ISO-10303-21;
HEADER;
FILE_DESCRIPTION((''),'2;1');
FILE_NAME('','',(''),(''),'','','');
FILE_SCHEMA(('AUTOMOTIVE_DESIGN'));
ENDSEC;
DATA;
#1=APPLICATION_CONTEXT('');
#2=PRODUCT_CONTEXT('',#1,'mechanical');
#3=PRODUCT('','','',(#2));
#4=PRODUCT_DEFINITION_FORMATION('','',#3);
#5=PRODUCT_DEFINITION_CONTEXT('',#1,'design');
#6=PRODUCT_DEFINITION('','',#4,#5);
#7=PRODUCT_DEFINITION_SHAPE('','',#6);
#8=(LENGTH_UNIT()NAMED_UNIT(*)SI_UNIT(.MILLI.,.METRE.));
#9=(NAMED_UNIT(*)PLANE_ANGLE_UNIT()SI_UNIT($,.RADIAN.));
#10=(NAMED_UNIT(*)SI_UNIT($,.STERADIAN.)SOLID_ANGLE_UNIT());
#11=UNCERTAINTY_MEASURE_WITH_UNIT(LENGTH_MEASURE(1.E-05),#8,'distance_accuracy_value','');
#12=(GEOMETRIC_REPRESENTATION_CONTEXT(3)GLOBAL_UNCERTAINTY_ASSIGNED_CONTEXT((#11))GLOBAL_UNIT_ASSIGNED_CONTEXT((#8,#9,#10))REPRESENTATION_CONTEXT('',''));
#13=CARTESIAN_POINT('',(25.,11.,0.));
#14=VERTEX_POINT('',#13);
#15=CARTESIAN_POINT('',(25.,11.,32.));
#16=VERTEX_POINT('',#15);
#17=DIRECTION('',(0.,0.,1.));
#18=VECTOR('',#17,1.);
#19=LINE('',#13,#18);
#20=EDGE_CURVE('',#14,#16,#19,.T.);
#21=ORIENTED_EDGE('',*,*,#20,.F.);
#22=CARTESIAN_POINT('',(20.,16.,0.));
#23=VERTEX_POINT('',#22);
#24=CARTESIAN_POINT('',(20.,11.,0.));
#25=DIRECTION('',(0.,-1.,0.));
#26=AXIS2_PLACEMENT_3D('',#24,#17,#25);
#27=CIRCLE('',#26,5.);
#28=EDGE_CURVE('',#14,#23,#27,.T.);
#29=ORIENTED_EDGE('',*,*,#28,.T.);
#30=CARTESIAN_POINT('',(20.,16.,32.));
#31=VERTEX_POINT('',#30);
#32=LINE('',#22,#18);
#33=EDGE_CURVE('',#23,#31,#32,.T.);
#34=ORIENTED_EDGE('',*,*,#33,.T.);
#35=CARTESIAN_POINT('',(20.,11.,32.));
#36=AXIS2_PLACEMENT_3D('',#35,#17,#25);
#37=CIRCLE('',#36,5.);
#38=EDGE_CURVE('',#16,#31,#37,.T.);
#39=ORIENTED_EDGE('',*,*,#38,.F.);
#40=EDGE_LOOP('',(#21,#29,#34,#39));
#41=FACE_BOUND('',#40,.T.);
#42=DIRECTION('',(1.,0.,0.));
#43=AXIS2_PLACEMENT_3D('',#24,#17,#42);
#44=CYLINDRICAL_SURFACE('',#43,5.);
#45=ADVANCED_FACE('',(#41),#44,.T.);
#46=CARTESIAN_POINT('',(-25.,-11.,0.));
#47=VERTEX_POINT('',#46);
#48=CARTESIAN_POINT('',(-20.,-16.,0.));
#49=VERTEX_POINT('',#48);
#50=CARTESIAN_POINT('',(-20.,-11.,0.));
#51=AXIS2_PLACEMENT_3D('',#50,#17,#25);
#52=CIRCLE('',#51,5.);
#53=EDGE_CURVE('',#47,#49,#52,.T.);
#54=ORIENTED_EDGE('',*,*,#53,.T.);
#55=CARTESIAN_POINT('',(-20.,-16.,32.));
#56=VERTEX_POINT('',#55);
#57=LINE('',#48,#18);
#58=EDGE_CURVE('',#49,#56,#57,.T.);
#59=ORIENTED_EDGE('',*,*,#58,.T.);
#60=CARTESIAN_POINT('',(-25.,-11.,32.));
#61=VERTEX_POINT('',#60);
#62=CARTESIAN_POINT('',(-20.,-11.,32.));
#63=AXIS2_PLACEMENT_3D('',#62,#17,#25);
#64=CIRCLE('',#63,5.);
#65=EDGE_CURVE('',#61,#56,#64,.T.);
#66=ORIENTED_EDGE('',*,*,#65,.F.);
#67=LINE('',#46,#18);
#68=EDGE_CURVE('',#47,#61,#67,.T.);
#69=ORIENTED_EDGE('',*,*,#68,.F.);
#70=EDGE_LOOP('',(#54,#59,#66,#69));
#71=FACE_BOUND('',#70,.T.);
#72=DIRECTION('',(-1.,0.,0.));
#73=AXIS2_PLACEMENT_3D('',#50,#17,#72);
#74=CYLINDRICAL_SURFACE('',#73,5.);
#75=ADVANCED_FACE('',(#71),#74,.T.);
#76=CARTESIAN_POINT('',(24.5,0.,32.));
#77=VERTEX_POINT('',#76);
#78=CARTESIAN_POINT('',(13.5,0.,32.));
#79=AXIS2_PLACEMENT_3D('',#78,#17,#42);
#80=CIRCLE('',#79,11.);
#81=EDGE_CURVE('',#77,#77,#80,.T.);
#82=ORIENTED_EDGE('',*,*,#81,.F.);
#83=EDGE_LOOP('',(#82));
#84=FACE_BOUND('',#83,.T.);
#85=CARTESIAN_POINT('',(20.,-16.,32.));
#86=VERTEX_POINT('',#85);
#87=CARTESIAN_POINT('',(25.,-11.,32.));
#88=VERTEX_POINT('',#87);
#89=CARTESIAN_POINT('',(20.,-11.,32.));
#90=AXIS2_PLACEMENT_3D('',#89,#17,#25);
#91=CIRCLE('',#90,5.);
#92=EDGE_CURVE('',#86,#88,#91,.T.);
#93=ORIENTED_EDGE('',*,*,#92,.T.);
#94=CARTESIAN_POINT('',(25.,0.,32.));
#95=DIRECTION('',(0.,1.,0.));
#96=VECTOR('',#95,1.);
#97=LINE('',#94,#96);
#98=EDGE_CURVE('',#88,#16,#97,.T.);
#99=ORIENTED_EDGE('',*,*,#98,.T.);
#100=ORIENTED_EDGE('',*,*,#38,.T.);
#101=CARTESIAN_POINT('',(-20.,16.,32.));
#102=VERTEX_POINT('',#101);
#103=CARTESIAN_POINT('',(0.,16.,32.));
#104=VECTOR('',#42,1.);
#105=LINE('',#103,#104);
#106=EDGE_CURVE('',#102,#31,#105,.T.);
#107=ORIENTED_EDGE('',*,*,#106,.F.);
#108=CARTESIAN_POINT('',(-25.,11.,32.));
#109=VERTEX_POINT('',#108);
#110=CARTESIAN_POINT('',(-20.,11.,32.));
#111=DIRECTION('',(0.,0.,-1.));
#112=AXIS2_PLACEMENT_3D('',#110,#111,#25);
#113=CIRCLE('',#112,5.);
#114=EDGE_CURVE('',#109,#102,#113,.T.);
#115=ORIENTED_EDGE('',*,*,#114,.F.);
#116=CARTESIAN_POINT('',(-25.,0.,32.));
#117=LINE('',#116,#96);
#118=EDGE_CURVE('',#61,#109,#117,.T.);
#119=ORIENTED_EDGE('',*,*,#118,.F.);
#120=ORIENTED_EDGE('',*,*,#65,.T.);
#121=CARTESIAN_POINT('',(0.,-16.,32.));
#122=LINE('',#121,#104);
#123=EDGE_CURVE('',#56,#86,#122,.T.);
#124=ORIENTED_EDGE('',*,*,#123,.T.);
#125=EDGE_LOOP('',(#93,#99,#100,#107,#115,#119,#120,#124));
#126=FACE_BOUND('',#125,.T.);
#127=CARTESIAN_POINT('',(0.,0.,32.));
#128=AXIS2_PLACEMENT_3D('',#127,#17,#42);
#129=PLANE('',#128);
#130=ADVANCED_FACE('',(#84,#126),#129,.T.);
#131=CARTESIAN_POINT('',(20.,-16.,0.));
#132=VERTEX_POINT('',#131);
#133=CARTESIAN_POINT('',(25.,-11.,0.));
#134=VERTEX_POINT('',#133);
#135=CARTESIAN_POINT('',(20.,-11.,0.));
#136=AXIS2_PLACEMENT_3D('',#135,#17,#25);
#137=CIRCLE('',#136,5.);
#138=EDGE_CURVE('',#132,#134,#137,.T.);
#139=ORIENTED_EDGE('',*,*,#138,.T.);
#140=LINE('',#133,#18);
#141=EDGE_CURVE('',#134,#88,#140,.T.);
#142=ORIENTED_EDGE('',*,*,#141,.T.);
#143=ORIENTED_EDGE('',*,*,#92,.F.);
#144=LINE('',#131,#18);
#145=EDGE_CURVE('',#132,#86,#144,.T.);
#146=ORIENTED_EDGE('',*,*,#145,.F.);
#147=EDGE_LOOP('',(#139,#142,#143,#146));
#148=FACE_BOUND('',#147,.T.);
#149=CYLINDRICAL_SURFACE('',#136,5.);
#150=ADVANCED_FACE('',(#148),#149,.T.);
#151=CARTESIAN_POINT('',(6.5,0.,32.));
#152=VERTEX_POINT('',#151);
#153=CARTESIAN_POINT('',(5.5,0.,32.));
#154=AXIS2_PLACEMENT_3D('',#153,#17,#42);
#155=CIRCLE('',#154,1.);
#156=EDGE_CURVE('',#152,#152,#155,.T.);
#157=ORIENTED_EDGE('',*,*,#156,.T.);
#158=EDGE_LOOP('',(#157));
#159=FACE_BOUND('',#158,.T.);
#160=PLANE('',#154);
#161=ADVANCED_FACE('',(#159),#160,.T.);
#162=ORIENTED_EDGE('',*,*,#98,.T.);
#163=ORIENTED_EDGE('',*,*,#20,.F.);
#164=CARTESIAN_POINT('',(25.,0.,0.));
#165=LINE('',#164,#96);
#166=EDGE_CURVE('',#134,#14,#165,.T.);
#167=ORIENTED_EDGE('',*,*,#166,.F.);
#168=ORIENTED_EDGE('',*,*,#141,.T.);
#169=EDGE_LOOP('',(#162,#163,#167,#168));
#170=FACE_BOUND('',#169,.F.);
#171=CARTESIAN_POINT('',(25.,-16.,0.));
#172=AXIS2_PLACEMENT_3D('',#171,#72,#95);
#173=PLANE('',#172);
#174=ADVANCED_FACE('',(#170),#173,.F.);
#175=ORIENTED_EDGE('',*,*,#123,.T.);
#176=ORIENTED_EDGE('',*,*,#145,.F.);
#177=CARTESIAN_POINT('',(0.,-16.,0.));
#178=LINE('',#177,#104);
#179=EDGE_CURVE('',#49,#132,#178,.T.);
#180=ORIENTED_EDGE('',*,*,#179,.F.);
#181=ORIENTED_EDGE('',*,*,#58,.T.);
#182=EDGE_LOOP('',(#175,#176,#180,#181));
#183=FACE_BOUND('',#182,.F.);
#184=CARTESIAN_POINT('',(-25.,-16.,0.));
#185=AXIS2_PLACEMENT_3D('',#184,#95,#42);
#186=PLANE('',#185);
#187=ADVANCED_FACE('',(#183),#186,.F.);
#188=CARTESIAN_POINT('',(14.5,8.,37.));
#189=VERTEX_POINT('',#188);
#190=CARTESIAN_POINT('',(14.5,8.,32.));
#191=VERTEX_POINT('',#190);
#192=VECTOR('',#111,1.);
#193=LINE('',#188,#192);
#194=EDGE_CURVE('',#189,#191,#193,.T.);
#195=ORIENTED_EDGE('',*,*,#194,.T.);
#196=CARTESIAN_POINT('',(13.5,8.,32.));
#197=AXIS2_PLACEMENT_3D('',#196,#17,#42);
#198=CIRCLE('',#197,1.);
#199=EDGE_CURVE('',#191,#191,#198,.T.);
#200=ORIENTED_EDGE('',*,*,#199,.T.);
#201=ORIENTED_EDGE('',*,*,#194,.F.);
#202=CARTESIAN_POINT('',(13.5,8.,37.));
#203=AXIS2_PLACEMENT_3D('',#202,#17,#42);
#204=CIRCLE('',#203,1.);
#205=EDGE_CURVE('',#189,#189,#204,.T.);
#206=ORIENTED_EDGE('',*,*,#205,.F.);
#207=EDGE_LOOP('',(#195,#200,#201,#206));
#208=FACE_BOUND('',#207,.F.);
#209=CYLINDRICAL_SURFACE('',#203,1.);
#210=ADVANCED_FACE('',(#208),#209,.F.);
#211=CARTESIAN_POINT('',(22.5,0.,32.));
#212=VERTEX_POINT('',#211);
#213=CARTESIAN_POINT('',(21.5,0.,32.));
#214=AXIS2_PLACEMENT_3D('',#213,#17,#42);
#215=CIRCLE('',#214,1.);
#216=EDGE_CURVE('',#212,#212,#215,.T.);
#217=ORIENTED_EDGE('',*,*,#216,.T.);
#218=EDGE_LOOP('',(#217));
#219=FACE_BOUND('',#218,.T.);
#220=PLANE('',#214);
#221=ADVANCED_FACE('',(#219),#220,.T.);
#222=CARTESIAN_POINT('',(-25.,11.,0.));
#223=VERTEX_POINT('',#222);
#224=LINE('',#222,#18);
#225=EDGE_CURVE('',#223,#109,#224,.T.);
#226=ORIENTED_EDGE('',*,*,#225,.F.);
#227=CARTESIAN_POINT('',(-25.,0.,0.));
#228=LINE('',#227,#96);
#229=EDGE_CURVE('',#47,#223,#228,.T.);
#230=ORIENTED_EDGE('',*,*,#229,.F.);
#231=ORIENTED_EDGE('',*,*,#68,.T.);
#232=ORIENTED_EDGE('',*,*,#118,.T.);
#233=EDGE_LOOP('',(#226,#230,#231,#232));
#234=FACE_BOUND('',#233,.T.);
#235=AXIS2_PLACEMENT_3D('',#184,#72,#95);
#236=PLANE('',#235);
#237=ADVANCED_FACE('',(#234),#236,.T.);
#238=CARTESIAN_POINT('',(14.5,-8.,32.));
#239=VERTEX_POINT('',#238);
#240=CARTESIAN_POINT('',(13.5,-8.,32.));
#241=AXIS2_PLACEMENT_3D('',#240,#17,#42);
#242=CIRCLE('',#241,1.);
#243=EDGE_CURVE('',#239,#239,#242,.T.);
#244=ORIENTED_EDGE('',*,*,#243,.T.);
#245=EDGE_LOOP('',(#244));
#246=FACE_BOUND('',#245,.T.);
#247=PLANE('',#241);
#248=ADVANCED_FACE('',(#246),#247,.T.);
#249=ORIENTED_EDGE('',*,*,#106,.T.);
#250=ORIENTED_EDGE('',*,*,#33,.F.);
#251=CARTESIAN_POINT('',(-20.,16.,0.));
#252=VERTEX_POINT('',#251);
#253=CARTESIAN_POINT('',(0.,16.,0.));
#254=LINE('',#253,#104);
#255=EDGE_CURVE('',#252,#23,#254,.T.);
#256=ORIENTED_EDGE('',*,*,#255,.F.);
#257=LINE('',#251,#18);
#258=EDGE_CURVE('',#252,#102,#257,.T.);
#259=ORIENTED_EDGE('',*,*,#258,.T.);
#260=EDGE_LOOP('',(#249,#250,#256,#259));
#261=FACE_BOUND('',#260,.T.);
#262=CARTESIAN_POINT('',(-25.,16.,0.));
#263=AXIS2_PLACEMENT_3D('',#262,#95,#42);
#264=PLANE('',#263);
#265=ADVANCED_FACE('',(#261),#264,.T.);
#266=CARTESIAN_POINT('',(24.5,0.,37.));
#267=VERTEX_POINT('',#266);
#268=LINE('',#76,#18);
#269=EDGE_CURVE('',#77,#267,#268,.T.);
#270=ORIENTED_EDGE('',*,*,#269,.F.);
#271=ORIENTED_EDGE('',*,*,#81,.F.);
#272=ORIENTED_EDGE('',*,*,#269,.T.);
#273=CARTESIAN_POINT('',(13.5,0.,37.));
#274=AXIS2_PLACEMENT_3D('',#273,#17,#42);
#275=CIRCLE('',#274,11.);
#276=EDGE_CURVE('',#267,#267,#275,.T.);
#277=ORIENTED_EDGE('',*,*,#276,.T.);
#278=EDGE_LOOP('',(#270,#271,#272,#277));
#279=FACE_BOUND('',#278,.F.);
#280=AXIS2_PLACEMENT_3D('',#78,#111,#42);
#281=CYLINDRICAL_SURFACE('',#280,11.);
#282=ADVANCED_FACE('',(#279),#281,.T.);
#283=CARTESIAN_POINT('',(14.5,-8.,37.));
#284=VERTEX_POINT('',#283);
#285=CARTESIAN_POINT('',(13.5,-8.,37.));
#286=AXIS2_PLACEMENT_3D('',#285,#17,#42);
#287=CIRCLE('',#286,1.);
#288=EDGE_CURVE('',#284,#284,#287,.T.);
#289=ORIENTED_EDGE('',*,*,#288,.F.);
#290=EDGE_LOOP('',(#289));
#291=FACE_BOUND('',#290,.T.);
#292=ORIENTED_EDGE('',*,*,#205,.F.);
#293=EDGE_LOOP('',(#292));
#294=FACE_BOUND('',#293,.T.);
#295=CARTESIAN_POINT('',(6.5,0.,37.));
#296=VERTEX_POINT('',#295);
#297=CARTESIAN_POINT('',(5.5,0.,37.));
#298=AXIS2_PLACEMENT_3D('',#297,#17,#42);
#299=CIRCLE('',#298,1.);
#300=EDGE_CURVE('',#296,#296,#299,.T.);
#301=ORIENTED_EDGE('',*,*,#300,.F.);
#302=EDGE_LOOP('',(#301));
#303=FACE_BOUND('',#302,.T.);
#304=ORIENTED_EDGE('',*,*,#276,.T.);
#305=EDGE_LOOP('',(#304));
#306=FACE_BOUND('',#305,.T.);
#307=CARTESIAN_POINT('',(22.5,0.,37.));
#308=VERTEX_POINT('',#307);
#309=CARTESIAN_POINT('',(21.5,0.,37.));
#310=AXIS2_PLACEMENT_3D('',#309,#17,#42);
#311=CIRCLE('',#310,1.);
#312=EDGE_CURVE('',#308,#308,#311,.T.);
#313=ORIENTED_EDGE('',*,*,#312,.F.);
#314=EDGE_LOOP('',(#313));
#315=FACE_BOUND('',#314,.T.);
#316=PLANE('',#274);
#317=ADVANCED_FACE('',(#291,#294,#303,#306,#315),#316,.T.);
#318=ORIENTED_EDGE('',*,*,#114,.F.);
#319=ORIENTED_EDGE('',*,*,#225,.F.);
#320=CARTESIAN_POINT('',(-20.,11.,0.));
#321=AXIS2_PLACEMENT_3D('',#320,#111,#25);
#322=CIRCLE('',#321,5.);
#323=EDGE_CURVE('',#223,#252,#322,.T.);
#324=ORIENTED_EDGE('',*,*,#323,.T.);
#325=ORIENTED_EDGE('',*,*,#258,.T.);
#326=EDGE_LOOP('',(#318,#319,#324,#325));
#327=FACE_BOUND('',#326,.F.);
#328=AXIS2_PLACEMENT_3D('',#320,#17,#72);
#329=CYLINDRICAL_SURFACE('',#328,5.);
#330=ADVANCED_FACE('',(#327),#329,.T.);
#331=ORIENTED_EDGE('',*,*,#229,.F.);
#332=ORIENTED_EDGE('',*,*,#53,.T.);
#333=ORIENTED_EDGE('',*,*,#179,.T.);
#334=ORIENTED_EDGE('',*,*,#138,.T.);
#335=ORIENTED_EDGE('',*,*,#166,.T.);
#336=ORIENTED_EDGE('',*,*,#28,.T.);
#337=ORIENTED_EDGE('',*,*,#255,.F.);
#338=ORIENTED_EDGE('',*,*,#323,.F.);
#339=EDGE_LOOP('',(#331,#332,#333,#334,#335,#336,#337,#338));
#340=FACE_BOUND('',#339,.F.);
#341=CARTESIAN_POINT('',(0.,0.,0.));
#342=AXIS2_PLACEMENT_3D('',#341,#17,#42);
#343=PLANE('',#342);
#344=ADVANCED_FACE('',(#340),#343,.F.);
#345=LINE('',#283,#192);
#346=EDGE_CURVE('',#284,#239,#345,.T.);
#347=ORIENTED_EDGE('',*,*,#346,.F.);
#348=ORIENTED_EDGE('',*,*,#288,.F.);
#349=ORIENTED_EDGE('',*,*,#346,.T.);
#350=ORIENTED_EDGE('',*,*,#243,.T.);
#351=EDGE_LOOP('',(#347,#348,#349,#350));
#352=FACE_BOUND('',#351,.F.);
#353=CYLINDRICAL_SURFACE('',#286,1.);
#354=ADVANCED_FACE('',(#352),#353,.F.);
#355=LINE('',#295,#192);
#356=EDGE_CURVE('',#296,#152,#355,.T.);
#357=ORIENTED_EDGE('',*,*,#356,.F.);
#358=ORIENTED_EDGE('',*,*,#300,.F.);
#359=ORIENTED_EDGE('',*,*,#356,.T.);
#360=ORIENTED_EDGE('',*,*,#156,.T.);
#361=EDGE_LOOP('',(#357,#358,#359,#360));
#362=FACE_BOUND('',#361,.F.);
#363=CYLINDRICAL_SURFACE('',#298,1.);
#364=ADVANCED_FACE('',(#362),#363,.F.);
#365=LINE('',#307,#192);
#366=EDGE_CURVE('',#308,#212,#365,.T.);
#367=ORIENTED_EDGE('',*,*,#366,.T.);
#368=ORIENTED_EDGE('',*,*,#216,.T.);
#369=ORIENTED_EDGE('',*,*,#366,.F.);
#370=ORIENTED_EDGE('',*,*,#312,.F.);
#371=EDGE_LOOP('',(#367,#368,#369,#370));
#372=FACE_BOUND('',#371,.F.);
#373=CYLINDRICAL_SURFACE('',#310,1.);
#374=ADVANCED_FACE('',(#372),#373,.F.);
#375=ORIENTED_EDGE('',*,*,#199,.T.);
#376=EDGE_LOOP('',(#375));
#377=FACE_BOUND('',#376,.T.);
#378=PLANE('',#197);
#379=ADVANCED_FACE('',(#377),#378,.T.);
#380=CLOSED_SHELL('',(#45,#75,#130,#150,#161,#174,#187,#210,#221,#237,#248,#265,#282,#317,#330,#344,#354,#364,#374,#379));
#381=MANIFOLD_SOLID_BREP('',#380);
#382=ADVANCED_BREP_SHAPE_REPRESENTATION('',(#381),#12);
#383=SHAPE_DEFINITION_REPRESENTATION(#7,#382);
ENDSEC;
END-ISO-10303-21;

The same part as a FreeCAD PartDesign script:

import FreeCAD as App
import Part
import Sketcher
Q = App.Units.Quantity


def edges_at(feature, points):
    """Names of the edges that pass closest to the given points."""
    edges = feature.Shape.Edges
    near = lambda p: min(range(len(edges)), key=lambda i: edges[i].distToShape(Part.Vertex(*p))[0])
    return sorted({f"Edge{near(p) + 1}" for p in points})


def add_polygon(sketch, points):
    """Adds a closed chain of lines whose ends are joined by coincident constraints."""
    first, n = sketch.GeometryCount, len(points)
    for a, b in zip(points, points[1:] + points[:1]):
        sketch.addGeometry(Part.LineSegment(App.Vector(*a, 0), App.Vector(*b, 0)), False)
    for i in range(n):
        sketch.addConstraint(Sketcher.Constraint("Coincident", first + i, 2, first + (i + 1) % n, 1))

doc = App.newDocument("Part")
params = doc.addObject("Spreadsheet::Sheet", "Params")
for row, (alias, value) in enumerate([
    ("sketch1_width", "50 mm"),
    ("sketch1_height", "32 mm"),
    ("pad1_length", "32 mm"),
    ("fillet_radius", "5 mm"),
    ("sketch2_diameter", "22 mm"),
    ("pad2_length", "5 mm"),
    ("sketch3_diameter", "2 mm"),
    ("pocket1_length", "5 mm"),
], start=1):
    params.set(f"A{row}", alias)
    params.set(f"B{row}", "=" + value)
    params.setAlias(f"B{row}", alias)

body = doc.addObject("PartDesign::Body", "Body")

# Sketch on XY plane
sketch1 = doc.addObject("Sketcher::SketchObject", "Sketch")
body.addObject(sketch1)
sketch1.AttachmentSupport = (doc.XY_Plane, [""])
sketch1.MapMode = "FlatFace"
add_polygon(sketch1, [(-25, 16), (-25, -16), (25, -16), (25, 16)])  # lines 0-3
sketch1.addConstraint([
    Sketcher.Constraint("Vertical", 0),
    Sketcher.Constraint("Horizontal", 1),
    Sketcher.Constraint("Vertical", 2),
    Sketcher.Constraint("Horizontal", 3),
    Sketcher.Constraint("Symmetric", 0, 2, 2, 2, -1, 1),
    Sketcher.Constraint("DistanceX", 1, 1, 1, 2, Q("50 mm")),
    Sketcher.Constraint("DistanceY", 0, 2, 0, 1, Q("32 mm")),
])
sketch1.setExpression("Constraints[9]", "Params.sketch1_width")
sketch1.setExpression("Constraints[10]", "Params.sketch1_height")
pad1 = doc.addObject("PartDesign::Pad", "Pad")
body.addObject(pad1)
pad1.Profile = sketch1
pad1.setExpression("Length", "Params.pad1_length")
doc.recompute()

fillet = doc.addObject("PartDesign::Fillet", "Fillet")
body.addObject(fillet)
fillet.Base = (pad1, edges_at(pad1, [
    (-25, -16, 16),
    (-25, 16, 16),
    (25, -16, 16),
    (25, 16, 16),
]))
fillet.setExpression("Radius", "Params.fillet_radius")

# Sketch on XY plane
sketch2 = doc.addObject("Sketcher::SketchObject", "Sketch001")
body.addObject(sketch2)
sketch2.AttachmentSupport = (doc.XY_Plane, [""])
sketch2.MapMode = "FlatFace"
sketch2.AttachmentOffset = App.Placement(App.Vector(0, 0, 32), App.Rotation())
sketch2.addGeometry(Part.Circle(App.Vector(14, 0, 0), App.Vector(0, 0, 1), 11), False)
sketch2.addConstraint([
    Sketcher.Constraint("PointOnObject", 0, 3, -1),
    Sketcher.Constraint("Diameter", 0, Q("22 mm")),
    Sketcher.Constraint("DistanceX", -1, 1, 0, 3, Q("13.5 mm")),
])
sketch2.setExpression("Constraints[1]", "Params.sketch2_diameter")
pad2 = doc.addObject("PartDesign::Pad", "Pad001")
body.addObject(pad2)
pad2.Profile = sketch2
pad2.setExpression("Length", "Params.pad2_length")

# Sketch on XY plane
sketch3 = doc.addObject("Sketcher::SketchObject", "Sketch002")
body.addObject(sketch3)
sketch3.AttachmentSupport = (doc.XY_Plane, [""])
sketch3.MapMode = "FlatFace"
sketch3.AttachmentOffset = App.Placement(App.Vector(0, 0, 37), App.Rotation())
sketch3.addGeometry([
    Part.Circle(App.Vector(21.5, 0, 0), App.Vector(0, 0, 1), 1),
    Part.Circle(App.Vector(13.5, 8, 0), App.Vector(0, 0, 1), 1),
    Part.Circle(App.Vector(5.5, 0, 0), App.Vector(0, 0, 1), 1),
    Part.Circle(App.Vector(13.5, -8, 0), App.Vector(0, 0, 1), 1),
], False)
sketch3.addConstraint([
    Sketcher.Constraint("Equal", 0, 1),
    Sketcher.Constraint("Equal", 1, 2),
    Sketcher.Constraint("Equal", 2, 3),
    Sketcher.Constraint("Symmetric", 1, 3, 3, 3, -1),
    Sketcher.Constraint("PointOnObject", 0, 3, -1),
    Sketcher.Constraint("PointOnObject", 2, 3, -1),
    Sketcher.Constraint("Diameter", 0, Q("2 mm")),
    Sketcher.Constraint("DistanceY", -1, 1, 1, 3, Q("8 mm")),
    Sketcher.Constraint("DistanceX", 1, 3, 0, 3, Q("8 mm")),
    Sketcher.Constraint("DistanceX", 2, 3, 1, 3, Q("8 mm")),
    Sketcher.Constraint("DistanceX", -1, 1, 0, 3, Q("21.5 mm")),
])
sketch3.setExpression("Constraints[6]", "Params.sketch3_diameter")
pocket1 = doc.addObject("PartDesign::Pocket", "Pocket")
body.addObject(pocket1)
pocket1.Profile = sketch3
pocket1.setExpression("Length", "Params.pocket1_length")

doc.recompute()
